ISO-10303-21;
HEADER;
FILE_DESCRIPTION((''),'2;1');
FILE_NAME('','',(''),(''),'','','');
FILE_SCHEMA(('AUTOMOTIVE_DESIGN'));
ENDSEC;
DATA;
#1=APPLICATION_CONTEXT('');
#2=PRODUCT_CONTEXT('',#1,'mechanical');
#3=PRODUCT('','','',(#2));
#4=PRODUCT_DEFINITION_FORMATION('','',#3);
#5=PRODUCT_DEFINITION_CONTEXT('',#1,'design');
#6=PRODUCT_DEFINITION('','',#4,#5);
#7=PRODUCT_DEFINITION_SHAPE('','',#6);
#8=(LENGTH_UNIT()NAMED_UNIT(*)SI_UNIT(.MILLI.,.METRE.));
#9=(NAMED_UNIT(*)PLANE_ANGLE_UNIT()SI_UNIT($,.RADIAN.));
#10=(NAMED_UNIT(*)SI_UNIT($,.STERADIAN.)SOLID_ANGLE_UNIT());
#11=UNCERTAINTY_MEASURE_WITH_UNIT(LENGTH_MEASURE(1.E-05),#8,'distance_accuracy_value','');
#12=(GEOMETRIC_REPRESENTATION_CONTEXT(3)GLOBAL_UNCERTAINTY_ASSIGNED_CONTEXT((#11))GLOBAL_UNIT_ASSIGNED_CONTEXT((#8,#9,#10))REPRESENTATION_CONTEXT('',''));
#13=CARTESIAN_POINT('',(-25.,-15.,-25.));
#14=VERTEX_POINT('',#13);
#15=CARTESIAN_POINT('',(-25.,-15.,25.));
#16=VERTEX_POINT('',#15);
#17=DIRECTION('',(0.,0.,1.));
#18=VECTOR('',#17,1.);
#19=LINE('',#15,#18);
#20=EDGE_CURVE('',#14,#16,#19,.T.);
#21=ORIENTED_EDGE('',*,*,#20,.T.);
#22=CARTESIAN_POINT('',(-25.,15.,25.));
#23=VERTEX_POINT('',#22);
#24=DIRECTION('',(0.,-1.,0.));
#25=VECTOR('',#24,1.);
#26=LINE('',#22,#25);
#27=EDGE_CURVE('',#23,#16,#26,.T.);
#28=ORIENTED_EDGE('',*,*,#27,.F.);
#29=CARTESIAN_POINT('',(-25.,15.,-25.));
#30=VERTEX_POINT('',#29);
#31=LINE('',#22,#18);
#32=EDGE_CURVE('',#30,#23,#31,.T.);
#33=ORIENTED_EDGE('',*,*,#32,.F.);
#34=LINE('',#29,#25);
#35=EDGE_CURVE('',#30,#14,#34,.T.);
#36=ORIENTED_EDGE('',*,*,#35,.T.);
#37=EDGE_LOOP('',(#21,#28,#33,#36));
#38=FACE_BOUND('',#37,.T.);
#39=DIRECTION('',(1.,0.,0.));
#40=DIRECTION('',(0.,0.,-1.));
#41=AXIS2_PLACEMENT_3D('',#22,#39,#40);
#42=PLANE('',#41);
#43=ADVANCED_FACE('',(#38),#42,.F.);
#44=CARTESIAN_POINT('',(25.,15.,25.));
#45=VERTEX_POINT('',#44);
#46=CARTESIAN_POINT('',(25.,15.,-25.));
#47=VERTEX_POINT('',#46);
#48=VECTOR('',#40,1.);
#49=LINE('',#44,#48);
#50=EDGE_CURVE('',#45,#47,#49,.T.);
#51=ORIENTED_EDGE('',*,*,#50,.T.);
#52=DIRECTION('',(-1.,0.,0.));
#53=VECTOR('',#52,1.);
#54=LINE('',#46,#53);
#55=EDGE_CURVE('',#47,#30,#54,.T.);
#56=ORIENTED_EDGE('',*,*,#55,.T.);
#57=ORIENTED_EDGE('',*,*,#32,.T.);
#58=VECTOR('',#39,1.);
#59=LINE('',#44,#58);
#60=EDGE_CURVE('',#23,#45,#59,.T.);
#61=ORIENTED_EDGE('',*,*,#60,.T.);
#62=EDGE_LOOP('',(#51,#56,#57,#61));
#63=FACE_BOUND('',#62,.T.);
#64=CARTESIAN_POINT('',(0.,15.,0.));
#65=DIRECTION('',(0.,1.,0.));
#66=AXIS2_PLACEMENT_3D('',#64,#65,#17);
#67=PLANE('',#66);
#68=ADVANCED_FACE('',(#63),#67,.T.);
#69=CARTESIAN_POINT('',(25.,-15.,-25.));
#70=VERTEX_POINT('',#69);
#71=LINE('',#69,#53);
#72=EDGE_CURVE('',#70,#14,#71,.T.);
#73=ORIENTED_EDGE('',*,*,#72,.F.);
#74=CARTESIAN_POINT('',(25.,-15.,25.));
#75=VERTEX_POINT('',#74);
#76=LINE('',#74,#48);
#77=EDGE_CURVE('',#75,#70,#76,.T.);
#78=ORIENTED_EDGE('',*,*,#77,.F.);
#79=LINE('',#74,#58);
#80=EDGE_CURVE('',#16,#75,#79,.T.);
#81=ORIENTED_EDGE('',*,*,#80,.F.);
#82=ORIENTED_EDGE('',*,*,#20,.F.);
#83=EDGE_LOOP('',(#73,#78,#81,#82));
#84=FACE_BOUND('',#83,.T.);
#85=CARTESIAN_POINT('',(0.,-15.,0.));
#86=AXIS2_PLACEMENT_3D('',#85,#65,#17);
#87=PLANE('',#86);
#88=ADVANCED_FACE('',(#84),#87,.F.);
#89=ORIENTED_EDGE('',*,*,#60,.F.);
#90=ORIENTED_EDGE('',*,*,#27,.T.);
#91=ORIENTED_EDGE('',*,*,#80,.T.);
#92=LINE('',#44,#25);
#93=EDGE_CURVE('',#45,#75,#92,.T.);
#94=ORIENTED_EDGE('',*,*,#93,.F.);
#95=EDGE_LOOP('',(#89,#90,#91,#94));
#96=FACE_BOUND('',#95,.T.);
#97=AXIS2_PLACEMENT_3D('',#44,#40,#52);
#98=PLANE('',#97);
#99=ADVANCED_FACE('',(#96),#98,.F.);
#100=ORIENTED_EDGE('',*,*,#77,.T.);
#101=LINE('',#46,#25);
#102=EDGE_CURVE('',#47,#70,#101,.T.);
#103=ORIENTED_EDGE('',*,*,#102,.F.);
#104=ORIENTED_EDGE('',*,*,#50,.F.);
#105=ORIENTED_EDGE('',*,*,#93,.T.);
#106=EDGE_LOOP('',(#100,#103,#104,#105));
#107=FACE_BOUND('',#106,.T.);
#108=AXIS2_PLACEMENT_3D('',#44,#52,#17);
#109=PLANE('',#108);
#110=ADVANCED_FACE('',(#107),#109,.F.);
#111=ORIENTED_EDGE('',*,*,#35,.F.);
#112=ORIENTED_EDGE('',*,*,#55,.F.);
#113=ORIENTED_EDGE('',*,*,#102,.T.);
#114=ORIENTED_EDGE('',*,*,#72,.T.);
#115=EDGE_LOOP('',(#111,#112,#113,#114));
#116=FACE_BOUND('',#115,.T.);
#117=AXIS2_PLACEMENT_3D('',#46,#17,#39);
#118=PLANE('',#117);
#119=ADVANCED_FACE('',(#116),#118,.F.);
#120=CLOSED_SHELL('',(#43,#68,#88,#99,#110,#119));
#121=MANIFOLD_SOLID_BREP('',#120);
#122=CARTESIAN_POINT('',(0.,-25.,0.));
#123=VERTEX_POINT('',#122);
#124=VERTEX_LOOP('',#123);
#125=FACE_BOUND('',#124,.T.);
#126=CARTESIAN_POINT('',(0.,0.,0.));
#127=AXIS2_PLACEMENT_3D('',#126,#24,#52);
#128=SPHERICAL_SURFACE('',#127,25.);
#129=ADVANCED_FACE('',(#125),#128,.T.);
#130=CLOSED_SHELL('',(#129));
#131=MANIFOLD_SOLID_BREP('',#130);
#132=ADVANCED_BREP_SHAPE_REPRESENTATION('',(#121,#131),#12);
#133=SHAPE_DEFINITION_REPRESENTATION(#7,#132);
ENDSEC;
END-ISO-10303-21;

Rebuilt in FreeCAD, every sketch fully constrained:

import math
import FreeCAD as App
import Part
import Sketcher

V = App.Vector


def add_polygon(sketch, points):
    """Adds a closed chain of lines whose ends are joined by coincident constraints."""
    first, n = sketch.GeometryCount, len(points)
    for a, b in zip(points, points[1:] + points[:1]):
        sketch.addGeometry(Part.LineSegment(App.Vector(*a, 0), App.Vector(*b, 0)), False)
    for i in range(n):
        sketch.addConstraint(Sketcher.Constraint("Coincident", first + i, 2, first + (i + 1) % n, 1))

doc = App.newDocument("Part")
body = doc.addObject("PartDesign::Body", "Body")

# Sketch on XY plane
sketch1 = doc.addObject("Sketcher::SketchObject", "Sketch")
body.addObject(sketch1)
sketch1.AttachmentSupport = (doc.XY_Plane, [""])
sketch1.MapMode = "FlatFace"
sketch1.addGeometry(Part.ArcOfCircle(Part.Circle(V(0, 0, 0), V(0, 0, 1), 25), math.radians(90), math.radians(270)), False)
sketch1.addGeometry(Part.LineSegment(V(0, -25, 0), V(0, 25, 0)), False)
sketch1.addConstraint(Sketcher.Constraint("Coincident", 0, 1, 1, 2))
sketch1.addConstraint(Sketcher.Constraint("Coincident", 1, 1, 0, 2))
sketch1.addConstraint(Sketcher.Constraint("Vertical", 1))
sketch1.addConstraint(Sketcher.Constraint("Coincident", 0, 3, -1, 1))
sketch1.addConstraint(Sketcher.Constraint("PointOnObject", 0, 1, -2))
sketch1.addConstraint(Sketcher.Constraint("Radius", 0, 25.0))
revolution = doc.addObject("PartDesign::Revolution", "Revolution")
body.addObject(revolution)
revolution.Profile = sketch1
revolution.ReferenceAxis = (sketch1, ["V_Axis"])
revolution.Angle = 360
body2 = doc.addObject("PartDesign::Body", "Body001")

# Sketch on XZ plane
sketch2 = doc.addObject("Sketcher::SketchObject", "Sketch001")
body2.addObject(sketch2)
sketch2.AttachmentSupport = (doc.getObject("XZ_Plane001"), [""])
sketch2.MapMode = "FlatFace"
add_polygon(sketch2, [(-25, -25), (-25, 25), (25, 25), (25, -25)])  # lines 0-3
sketch2.addConstraint(Sketcher.Constraint("Vertical", 0))
sketch2.addConstraint(Sketcher.Constraint("Horizontal", 1))
sketch2.addConstraint(Sketcher.Constraint("Vertical", 2))
sketch2.addConstraint(Sketcher.Constraint("Horizontal", 3))
sketch2.addConstraint(Sketcher.Constraint("Symmetric", 0, 2, 2, 2, -1, 1))
sketch2.addConstraint(Sketcher.Constraint("Equal", 3, 0))
sketch2.addConstraint(Sketcher.Constraint("DistanceX", 1, 1, 1, 2, 50.0))
pad1 = doc.addObject("PartDesign::Pad", "Pad")
body2.addObject(pad1)
pad1.Profile = sketch2
pad1.Length = 30
pad1.Midplane = True

doc.recompute()
